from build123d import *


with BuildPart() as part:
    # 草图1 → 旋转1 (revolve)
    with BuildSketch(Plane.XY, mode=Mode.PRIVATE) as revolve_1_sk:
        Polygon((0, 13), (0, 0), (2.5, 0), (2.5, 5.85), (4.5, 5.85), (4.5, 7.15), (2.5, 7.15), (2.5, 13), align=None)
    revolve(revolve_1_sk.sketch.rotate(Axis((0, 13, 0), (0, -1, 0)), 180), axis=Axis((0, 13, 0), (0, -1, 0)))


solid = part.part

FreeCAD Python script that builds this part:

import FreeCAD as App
import Part
import Sketcher


def add_polygon(sketch, points):
    """Adds a closed chain of lines whose ends are joined by coincident constraints."""
    first, n = sketch.GeometryCount, len(points)
    for a, b in zip(points, points[1:] + points[:1]):
        sketch.addGeometry(Part.LineSegment(App.Vector(*a, 0), App.Vector(*b, 0)), False)
    for i in range(n):
        sketch.addConstraint(Sketcher.Constraint("Coincident", first + i, 2, first + (i + 1) % n, 1))

doc = App.newDocument("Part")
body = doc.addObject("PartDesign::Body", "Body")

sketch1 = body.newObject("Sketcher::SketchObject", "Sketch")
sketch1.AttachmentSupport = (doc.getObject("XY_Plane"), [""])
sketch1.MapMode = "FlatFace"
add_polygon(sketch1, [(0, 13), (0, 0), (2.5, 0), (2.5, 5.8), (4.5, 5.8), (4.5, 7.2), (2.5, 7.2), (2.5, 13)])
sketch1.addConstraint(Sketcher.Constraint("Vertical", 0))
sketch1.addConstraint(Sketcher.Constraint("Horizontal", 1))
sketch1.addConstraint(Sketcher.Constraint("Vertical", 2))
sketch1.addConstraint(Sketcher.Constraint("Horizontal", 3))
sketch1.addConstraint(Sketcher.Constraint("Vertical", 4))
sketch1.addConstraint(Sketcher.Constraint("Horizontal", 5))
sketch1.addConstraint(Sketcher.Constraint("Vertical", 6))
sketch1.addConstraint(Sketcher.Constraint("Horizontal", 7))
sketch1.addConstraint(Sketcher.Constraint("Coincident", 0, 2, -1, 1))
sketch1.addConstraint(Sketcher.Constraint("Vertical", 2, 2, 5, 2))
sketch1.addConstraint(Sketcher.Constraint("Equal", 2, 6))
sketch1.addConstraint(Sketcher.Constraint("DistanceX", 3, 1, 3, 2, 2.0))
sketch1.addConstraint(Sketcher.Constraint("DistanceY", 0, 2, 0, 1, 13.0))
sketch1.addConstraint(Sketcher.Constraint("DistanceX", 1, 1, 1, 2, 2.5))
sketch1.addConstraint(Sketcher.Constraint("DistanceY", 4, 1, 4, 2, 1.3))
revolution = body.newObject("PartDesign::Revolution", "Revolution")
revolution.Profile = sketch1
revolution.ReferenceAxis = (sketch1, ["V_Axis"])
revolution.Angle = 360

doc.recompute()
